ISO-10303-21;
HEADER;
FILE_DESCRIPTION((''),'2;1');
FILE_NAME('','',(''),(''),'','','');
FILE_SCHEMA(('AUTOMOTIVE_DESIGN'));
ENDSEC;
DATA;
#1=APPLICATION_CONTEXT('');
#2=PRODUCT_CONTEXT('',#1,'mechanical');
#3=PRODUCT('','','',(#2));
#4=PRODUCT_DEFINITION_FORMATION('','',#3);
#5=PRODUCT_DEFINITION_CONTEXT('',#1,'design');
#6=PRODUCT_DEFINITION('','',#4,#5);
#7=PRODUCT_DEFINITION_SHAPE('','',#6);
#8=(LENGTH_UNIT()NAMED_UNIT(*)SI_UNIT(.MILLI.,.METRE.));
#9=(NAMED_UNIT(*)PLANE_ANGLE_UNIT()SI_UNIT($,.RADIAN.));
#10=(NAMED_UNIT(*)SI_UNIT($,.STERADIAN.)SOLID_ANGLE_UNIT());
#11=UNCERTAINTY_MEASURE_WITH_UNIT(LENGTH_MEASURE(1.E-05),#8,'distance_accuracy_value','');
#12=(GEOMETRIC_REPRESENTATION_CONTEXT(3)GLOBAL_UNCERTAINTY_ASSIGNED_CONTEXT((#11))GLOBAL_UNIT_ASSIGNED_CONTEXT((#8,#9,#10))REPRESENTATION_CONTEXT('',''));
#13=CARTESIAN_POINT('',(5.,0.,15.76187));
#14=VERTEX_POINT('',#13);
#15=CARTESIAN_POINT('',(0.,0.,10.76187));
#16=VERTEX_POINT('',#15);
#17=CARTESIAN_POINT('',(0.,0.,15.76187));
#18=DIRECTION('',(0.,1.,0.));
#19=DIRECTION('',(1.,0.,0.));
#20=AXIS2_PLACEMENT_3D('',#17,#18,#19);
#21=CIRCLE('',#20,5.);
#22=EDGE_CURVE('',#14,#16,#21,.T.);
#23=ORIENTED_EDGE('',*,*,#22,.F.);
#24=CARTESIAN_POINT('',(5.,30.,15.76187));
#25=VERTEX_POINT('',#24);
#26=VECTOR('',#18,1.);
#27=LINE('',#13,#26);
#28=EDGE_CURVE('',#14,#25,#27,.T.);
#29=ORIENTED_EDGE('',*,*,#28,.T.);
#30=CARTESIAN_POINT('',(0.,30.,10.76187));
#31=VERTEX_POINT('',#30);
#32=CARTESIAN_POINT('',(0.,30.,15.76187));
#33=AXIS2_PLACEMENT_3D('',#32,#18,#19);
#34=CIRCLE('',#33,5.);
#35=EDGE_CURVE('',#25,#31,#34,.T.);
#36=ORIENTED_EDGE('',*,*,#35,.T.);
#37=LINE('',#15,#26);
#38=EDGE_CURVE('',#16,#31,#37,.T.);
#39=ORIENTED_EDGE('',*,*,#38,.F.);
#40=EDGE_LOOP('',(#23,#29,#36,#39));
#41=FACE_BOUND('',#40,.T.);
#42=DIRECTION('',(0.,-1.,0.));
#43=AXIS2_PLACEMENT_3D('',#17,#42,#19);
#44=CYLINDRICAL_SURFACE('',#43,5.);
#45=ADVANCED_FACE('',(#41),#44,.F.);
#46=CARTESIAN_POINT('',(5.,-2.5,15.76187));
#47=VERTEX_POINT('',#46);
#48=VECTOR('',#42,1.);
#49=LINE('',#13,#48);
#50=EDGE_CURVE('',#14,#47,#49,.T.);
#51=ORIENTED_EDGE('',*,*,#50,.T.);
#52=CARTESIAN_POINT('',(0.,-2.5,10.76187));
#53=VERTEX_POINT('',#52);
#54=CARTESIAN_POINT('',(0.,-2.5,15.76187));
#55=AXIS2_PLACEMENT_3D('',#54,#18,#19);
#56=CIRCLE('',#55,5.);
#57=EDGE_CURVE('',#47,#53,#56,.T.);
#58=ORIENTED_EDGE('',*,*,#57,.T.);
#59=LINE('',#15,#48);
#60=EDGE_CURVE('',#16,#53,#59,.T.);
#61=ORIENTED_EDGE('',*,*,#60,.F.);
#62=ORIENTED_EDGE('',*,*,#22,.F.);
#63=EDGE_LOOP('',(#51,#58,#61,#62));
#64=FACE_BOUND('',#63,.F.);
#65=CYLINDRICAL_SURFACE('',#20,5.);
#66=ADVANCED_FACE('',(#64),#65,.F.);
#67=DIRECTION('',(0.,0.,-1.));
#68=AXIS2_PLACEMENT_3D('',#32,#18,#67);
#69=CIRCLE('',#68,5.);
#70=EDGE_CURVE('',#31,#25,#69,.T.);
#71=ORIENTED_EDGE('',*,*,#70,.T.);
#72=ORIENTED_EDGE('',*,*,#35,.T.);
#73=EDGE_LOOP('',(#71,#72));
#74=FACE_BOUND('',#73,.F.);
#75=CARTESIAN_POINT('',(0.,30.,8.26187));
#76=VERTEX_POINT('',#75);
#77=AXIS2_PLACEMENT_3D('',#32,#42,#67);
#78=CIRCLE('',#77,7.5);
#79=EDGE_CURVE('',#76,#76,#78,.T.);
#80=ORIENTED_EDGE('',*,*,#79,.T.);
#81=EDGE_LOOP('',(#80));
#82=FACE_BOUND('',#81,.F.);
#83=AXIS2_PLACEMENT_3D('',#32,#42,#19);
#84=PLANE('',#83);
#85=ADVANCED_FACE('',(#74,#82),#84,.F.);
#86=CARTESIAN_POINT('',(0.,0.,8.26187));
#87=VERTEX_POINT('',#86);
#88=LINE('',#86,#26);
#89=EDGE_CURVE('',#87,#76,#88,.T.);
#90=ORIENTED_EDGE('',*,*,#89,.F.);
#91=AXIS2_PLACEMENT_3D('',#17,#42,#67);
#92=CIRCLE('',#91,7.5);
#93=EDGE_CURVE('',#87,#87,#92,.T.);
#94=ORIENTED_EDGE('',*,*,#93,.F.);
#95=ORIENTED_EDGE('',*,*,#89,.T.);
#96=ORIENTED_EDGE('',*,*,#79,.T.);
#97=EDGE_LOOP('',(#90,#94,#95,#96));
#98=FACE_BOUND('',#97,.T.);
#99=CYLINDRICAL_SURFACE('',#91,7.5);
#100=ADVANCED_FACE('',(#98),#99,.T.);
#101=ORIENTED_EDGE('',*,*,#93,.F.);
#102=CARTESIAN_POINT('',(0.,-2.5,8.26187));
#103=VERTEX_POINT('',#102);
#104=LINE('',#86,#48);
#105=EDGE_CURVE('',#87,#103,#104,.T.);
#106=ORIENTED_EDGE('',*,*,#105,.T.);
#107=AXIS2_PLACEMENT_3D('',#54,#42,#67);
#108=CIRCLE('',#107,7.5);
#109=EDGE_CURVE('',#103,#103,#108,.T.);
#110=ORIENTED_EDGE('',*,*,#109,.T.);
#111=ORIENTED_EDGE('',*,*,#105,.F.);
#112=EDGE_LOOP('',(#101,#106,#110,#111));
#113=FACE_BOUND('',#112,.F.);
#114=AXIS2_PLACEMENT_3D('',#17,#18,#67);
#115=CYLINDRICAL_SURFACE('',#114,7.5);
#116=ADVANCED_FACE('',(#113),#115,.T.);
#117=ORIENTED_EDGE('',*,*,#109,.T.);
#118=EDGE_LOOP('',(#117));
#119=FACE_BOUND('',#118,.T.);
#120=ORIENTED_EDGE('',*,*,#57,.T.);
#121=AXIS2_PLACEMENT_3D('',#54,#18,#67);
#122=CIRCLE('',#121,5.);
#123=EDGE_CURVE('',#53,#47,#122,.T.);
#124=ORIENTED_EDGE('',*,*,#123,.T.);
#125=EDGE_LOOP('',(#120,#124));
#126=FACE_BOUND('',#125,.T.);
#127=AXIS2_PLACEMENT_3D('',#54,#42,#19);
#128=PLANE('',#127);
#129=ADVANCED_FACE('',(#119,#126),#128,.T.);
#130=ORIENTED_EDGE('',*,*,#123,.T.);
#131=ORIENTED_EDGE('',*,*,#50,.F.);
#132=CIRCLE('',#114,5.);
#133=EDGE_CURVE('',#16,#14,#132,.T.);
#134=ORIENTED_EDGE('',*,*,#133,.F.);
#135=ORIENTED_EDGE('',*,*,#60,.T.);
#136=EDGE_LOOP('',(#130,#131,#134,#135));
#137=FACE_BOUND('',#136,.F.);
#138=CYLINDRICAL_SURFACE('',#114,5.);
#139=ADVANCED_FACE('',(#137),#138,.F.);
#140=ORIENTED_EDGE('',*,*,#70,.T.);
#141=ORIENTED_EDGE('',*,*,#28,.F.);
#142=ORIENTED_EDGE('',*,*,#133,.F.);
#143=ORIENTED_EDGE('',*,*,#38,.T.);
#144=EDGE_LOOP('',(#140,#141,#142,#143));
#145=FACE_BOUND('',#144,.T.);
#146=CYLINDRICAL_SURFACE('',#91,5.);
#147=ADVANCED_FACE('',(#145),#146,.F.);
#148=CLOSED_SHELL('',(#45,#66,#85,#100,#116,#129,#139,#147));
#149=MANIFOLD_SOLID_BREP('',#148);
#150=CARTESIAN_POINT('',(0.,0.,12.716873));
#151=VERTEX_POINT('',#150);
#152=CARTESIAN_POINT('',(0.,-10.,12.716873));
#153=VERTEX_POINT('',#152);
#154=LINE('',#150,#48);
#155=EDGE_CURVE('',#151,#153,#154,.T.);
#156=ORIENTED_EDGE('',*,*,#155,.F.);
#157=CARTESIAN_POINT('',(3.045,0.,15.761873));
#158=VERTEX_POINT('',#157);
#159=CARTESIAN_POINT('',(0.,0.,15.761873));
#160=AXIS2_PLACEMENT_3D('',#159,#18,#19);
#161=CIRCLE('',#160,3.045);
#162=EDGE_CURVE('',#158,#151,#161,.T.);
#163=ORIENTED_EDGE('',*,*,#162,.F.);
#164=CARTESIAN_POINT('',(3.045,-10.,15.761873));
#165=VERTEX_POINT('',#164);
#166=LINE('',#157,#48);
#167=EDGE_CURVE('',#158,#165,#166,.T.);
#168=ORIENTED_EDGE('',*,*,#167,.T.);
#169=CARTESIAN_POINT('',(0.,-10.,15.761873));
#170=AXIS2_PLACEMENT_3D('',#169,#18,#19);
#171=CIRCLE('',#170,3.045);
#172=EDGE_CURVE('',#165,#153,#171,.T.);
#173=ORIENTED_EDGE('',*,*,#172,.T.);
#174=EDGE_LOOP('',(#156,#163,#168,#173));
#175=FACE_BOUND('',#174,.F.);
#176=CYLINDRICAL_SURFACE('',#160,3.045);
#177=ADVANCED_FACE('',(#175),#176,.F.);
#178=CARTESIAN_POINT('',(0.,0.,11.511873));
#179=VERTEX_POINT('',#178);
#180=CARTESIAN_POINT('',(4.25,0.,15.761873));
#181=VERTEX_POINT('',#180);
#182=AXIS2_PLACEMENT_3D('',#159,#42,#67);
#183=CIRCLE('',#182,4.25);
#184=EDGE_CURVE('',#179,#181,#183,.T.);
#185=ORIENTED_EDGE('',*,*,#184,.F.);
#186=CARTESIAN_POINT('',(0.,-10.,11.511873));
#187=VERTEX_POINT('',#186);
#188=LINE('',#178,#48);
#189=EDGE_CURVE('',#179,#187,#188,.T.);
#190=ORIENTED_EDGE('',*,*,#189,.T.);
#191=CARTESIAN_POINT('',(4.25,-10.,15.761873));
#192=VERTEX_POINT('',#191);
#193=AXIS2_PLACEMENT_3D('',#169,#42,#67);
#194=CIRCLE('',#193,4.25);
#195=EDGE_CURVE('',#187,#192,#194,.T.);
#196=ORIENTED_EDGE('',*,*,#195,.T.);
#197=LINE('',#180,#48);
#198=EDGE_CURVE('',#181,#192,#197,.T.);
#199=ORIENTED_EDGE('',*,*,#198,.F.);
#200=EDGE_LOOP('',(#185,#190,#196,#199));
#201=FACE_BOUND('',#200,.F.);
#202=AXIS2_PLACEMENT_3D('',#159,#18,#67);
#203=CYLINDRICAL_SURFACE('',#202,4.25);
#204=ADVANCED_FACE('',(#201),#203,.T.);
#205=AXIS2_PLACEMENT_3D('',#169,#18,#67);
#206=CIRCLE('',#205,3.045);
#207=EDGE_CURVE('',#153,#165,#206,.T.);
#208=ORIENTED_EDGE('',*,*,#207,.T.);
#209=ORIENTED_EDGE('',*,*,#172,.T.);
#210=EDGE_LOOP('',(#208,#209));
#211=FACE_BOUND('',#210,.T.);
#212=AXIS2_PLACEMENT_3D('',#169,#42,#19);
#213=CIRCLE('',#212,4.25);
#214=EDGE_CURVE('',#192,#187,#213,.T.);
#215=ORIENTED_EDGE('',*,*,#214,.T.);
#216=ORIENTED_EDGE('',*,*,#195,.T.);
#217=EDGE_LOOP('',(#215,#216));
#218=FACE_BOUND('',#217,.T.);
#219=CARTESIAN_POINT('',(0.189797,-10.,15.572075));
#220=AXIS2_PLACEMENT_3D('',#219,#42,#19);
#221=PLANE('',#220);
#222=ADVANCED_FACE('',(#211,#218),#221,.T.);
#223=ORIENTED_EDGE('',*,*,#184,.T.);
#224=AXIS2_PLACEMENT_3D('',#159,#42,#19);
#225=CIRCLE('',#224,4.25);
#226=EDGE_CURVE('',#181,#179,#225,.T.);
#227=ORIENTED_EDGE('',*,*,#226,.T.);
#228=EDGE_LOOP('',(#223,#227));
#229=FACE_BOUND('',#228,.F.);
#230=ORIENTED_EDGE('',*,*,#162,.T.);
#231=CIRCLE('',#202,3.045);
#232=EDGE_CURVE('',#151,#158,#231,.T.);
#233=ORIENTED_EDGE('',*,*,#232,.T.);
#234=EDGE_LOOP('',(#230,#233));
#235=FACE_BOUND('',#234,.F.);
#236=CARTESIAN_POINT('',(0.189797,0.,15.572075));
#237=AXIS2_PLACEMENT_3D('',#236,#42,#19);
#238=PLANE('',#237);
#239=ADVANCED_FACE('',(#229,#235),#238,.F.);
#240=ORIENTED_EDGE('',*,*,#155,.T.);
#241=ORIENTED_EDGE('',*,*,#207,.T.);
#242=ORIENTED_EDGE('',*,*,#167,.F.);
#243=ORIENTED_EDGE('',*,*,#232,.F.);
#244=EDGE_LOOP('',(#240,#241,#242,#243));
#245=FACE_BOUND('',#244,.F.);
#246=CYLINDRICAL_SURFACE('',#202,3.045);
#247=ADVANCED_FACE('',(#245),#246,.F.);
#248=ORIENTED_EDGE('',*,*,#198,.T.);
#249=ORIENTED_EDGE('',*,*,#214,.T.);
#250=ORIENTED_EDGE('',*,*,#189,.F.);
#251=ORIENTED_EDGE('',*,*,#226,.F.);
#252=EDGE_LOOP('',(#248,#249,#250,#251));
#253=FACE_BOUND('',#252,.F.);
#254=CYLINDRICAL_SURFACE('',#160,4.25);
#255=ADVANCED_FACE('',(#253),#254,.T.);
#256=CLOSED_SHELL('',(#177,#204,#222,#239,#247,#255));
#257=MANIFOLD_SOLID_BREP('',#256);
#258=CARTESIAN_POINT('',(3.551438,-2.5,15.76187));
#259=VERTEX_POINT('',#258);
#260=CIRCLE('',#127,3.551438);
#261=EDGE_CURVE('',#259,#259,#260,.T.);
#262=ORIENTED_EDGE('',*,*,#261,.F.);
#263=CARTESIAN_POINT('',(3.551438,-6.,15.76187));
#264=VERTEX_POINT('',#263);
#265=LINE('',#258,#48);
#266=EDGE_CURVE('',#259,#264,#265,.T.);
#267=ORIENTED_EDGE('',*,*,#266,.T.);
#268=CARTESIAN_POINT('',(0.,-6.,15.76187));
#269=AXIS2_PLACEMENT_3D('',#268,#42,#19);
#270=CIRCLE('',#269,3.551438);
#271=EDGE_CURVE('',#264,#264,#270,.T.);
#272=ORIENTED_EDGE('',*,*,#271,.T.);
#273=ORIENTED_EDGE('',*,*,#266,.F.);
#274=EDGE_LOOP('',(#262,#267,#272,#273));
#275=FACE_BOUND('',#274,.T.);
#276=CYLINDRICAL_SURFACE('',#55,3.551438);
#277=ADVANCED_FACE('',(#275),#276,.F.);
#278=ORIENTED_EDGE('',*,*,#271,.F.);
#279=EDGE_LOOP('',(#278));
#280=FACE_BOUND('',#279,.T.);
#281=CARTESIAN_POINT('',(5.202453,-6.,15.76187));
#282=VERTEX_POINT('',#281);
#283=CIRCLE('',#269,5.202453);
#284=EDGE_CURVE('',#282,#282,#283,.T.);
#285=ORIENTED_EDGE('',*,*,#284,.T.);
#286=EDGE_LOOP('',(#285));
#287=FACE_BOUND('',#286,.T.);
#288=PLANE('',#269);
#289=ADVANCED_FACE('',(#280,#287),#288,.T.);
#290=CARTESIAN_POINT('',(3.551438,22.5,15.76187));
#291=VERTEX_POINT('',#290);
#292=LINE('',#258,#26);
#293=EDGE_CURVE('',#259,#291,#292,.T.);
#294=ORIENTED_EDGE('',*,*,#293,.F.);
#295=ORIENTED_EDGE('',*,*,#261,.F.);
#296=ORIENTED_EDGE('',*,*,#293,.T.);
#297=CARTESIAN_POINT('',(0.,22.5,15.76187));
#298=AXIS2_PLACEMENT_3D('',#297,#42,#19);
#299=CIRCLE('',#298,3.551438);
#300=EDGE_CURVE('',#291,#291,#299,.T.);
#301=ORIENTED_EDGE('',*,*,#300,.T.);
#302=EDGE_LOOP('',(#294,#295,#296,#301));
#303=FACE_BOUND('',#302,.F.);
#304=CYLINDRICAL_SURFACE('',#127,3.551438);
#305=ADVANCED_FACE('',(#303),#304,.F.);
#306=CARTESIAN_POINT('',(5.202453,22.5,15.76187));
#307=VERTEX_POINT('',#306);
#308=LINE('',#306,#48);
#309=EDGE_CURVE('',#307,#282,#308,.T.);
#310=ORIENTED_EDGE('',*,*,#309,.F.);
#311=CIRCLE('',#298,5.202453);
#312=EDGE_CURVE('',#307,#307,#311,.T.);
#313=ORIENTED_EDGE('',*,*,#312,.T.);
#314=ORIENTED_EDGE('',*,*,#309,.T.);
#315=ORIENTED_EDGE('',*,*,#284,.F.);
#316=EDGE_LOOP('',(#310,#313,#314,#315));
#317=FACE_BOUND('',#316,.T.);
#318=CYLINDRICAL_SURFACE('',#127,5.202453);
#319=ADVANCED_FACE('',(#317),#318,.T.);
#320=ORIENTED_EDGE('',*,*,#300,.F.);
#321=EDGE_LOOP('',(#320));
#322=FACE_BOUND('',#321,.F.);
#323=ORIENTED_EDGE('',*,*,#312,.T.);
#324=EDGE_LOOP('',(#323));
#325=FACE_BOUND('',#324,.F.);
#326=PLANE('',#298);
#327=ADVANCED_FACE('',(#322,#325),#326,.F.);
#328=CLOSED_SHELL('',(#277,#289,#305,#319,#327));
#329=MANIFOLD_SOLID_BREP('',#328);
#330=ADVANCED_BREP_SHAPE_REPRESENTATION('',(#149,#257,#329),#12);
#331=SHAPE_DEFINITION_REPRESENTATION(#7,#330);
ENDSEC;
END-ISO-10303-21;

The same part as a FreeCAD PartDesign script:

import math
import FreeCAD as App
import Part
import Sketcher

V = App.Vector

doc = App.newDocument("Part")
params = doc.addObject("Spreadsheet::Sheet", "Params")
for row, (alias, value) in enumerate([
    ("sketch1_radius", "4.25 mm"),
    ("pad1_length", "10 mm"),
    ("sketch2_diameter", "15 mm"),
    ("sketch2_radius", "5 mm"),
    ("pad2_length", "30 mm"),
    ("pad2_length2", "2.5 mm"),
    ("pad3_length", "3.5 mm"),
    ("pad3_length2", "25 mm"),
], start=1):
    params.set(f"A{row}", alias)
    params.set(f"B{row}", "=" + value)
    params.setAlias(f"B{row}", alias)

body = doc.addObject("PartDesign::Body", "Body")

sketch1 = body.newObject("Sketcher::SketchObject", "Sketch")
sketch1.AttachmentSupport = (doc.getObject("XZ_Plane"), [""])
sketch1.MapMode = "FlatFace"
sketch1.addGeometry(Part.ArcOfCircle(Part.Circle(V(0, 15.8, 0), V(0, 0, 1), 4.2), math.radians(0), math.radians(270)), False)
sketch1.addGeometry(Part.ArcOfCircle(Part.Circle(V(0, 15.8, 0), V(0, 0, 1), 4.2), math.radians(-90), math.radians(0)), False)
sketch1.addGeometry(Part.ArcOfCircle(Part.Circle(V(0, 15.8, 0), V(0, 0, 1), 3), math.radians(-90), math.radians(0)), False)
sketch1.addGeometry(Part.ArcOfCircle(Part.Circle(V(0, 15.8, 0), V(0, 0, 1), 3), math.radians(0), math.radians(270)), False)
sketch1.addConstraint(Sketcher.Constraint("Tangent", 0, 1, 1, 2))
sketch1.addConstraint(Sketcher.Constraint("Coincident", 1, 1, 0, 2))
sketch1.addConstraint(Sketcher.Constraint("Tangent", 2, 1, 3, 2))
sketch1.addConstraint(Sketcher.Constraint("Coincident", 3, 1, 2, 2))
sketch1.addConstraint(Sketcher.Constraint("Coincident", 2, 3, 0, 3))
sketch1.addConstraint(Sketcher.Constraint("PointOnObject", 0, 3, -2))
sketch1.addConstraint(Sketcher.Constraint("PointOnObject", 1, 1, -2))
sketch1.addConstraint(Sketcher.Constraint("PointOnObject", 2, 1, -2))
sketch1.addConstraint(Sketcher.Constraint("Horizontal", 3, 3, 0, 1))
sketch1.addConstraint(Sketcher.Constraint("Horizontal", 0, 1, 3, 1))
sketch1.addConstraint(Sketcher.Constraint("Radius", 0, 4.25))
sketch1.addConstraint(Sketcher.Constraint("Radius", 2, 3.045))
sketch1.addConstraint(Sketcher.Constraint("DistanceY", -1, 1, 0, 3, 15.761873))
sketch1.setExpression("Constraints[10]", "Params.sketch1_radius")
pad1 = body.newObject("PartDesign::Pad", "Pad")
pad1.Profile = sketch1
pad1.setExpression("Length", "Params.pad1_length")
body2 = doc.addObject("PartDesign::Body", "Body001")

sketch2 = body2.newObject("Sketcher::SketchObject", "Sketch001")
sketch2.AttachmentSupport = (doc.getObject("XZ_Plane001"), [""])
sketch2.MapMode = "FlatFace"
sketch2.addGeometry(Part.Circle(V(0, 16, 0), V(0, 0, 1), 8), False)
sketch2.addGeometry(Part.ArcOfCircle(Part.Circle(V(0, 16, 0), V(0, 0, 1), 5), math.radians(0), math.radians(270)), False)
sketch2.addGeometry(Part.ArcOfCircle(Part.Circle(V(0, 16, 0), V(0, 0, 1), 5), math.radians(-90), math.radians(0)), False)
sketch2.addConstraint(Sketcher.Constraint("Tangent", 1, 1, 2, 2))
sketch2.addConstraint(Sketcher.Constraint("Coincident", 2, 1, 1, 2))
sketch2.addConstraint(Sketcher.Constraint("Coincident", 1, 3, 0, 3))
sketch2.addConstraint(Sketcher.Constraint("PointOnObject", 0, 3, -2))
sketch2.addConstraint(Sketcher.Constraint("PointOnObject", 2, 1, -2))
sketch2.addConstraint(Sketcher.Constraint("Horizontal", 2, 3, 1, 1))
sketch2.addConstraint(Sketcher.Constraint("Diameter", 0, 15.0))
sketch2.addConstraint(Sketcher.Constraint("Radius", 1, 5.0))
sketch2.addConstraint(Sketcher.Constraint("DistanceY", -1, 1, 0, 3, 15.76187))
sketch2.setExpression("Constraints[6]", "Params.sketch2_diameter")
sketch2.setExpression("Constraints[7]", "Params.sketch2_radius")
pad2 = body2.newObject("PartDesign::Pad", "Pad001")
pad2.Profile = sketch2
pad2.Type = "TwoLengths"
pad2.setExpression("Length", "Params.pad2_length")
pad2.setExpression("Length2", "Params.pad2_length2")
pad2.Reversed = True
body3 = doc.addObject("PartDesign::Body", "Body002")

sketch3 = body3.newObject("Sketcher::SketchObject", "Sketch002")
sketch3.AttachmentSupport = (doc.getObject("XZ_Plane002"), [""])
sketch3.MapMode = "FlatFace"
sketch3.AttachmentOffset = App.Placement(V(0, 0, 2.5), App.Rotation())
sketch3.addGeometry(Part.Circle(V(0, 15.8, 0), V(0, 0, 1), 5.2), False)
sketch3.addGeometry(Part.Circle(V(0, 15.8, 0), V(0, 0, 1), 3.6), False)
sketch3.addConstraint(Sketcher.Constraint("Coincident", 1, 3, 0, 3))
sketch3.addConstraint(Sketcher.Constraint("PointOnObject", 0, 3, -2))
sketch3.addConstraint(Sketcher.Constraint("Diameter", 0, 10.404905))
sketch3.addConstraint(Sketcher.Constraint("Diameter", 1, 7.102876))
sketch3.addConstraint(Sketcher.Constraint("DistanceY", -1, 1, 0, 3, 15.76187))
pad3 = body3.newObject("PartDesign::Pad", "Pad002")
pad3.Profile = sketch3
pad3.Type = "TwoLengths"
pad3.setExpression("Length", "Params.pad3_length")
pad3.setExpression("Length2", "Params.pad3_length2")

doc.recompute()
